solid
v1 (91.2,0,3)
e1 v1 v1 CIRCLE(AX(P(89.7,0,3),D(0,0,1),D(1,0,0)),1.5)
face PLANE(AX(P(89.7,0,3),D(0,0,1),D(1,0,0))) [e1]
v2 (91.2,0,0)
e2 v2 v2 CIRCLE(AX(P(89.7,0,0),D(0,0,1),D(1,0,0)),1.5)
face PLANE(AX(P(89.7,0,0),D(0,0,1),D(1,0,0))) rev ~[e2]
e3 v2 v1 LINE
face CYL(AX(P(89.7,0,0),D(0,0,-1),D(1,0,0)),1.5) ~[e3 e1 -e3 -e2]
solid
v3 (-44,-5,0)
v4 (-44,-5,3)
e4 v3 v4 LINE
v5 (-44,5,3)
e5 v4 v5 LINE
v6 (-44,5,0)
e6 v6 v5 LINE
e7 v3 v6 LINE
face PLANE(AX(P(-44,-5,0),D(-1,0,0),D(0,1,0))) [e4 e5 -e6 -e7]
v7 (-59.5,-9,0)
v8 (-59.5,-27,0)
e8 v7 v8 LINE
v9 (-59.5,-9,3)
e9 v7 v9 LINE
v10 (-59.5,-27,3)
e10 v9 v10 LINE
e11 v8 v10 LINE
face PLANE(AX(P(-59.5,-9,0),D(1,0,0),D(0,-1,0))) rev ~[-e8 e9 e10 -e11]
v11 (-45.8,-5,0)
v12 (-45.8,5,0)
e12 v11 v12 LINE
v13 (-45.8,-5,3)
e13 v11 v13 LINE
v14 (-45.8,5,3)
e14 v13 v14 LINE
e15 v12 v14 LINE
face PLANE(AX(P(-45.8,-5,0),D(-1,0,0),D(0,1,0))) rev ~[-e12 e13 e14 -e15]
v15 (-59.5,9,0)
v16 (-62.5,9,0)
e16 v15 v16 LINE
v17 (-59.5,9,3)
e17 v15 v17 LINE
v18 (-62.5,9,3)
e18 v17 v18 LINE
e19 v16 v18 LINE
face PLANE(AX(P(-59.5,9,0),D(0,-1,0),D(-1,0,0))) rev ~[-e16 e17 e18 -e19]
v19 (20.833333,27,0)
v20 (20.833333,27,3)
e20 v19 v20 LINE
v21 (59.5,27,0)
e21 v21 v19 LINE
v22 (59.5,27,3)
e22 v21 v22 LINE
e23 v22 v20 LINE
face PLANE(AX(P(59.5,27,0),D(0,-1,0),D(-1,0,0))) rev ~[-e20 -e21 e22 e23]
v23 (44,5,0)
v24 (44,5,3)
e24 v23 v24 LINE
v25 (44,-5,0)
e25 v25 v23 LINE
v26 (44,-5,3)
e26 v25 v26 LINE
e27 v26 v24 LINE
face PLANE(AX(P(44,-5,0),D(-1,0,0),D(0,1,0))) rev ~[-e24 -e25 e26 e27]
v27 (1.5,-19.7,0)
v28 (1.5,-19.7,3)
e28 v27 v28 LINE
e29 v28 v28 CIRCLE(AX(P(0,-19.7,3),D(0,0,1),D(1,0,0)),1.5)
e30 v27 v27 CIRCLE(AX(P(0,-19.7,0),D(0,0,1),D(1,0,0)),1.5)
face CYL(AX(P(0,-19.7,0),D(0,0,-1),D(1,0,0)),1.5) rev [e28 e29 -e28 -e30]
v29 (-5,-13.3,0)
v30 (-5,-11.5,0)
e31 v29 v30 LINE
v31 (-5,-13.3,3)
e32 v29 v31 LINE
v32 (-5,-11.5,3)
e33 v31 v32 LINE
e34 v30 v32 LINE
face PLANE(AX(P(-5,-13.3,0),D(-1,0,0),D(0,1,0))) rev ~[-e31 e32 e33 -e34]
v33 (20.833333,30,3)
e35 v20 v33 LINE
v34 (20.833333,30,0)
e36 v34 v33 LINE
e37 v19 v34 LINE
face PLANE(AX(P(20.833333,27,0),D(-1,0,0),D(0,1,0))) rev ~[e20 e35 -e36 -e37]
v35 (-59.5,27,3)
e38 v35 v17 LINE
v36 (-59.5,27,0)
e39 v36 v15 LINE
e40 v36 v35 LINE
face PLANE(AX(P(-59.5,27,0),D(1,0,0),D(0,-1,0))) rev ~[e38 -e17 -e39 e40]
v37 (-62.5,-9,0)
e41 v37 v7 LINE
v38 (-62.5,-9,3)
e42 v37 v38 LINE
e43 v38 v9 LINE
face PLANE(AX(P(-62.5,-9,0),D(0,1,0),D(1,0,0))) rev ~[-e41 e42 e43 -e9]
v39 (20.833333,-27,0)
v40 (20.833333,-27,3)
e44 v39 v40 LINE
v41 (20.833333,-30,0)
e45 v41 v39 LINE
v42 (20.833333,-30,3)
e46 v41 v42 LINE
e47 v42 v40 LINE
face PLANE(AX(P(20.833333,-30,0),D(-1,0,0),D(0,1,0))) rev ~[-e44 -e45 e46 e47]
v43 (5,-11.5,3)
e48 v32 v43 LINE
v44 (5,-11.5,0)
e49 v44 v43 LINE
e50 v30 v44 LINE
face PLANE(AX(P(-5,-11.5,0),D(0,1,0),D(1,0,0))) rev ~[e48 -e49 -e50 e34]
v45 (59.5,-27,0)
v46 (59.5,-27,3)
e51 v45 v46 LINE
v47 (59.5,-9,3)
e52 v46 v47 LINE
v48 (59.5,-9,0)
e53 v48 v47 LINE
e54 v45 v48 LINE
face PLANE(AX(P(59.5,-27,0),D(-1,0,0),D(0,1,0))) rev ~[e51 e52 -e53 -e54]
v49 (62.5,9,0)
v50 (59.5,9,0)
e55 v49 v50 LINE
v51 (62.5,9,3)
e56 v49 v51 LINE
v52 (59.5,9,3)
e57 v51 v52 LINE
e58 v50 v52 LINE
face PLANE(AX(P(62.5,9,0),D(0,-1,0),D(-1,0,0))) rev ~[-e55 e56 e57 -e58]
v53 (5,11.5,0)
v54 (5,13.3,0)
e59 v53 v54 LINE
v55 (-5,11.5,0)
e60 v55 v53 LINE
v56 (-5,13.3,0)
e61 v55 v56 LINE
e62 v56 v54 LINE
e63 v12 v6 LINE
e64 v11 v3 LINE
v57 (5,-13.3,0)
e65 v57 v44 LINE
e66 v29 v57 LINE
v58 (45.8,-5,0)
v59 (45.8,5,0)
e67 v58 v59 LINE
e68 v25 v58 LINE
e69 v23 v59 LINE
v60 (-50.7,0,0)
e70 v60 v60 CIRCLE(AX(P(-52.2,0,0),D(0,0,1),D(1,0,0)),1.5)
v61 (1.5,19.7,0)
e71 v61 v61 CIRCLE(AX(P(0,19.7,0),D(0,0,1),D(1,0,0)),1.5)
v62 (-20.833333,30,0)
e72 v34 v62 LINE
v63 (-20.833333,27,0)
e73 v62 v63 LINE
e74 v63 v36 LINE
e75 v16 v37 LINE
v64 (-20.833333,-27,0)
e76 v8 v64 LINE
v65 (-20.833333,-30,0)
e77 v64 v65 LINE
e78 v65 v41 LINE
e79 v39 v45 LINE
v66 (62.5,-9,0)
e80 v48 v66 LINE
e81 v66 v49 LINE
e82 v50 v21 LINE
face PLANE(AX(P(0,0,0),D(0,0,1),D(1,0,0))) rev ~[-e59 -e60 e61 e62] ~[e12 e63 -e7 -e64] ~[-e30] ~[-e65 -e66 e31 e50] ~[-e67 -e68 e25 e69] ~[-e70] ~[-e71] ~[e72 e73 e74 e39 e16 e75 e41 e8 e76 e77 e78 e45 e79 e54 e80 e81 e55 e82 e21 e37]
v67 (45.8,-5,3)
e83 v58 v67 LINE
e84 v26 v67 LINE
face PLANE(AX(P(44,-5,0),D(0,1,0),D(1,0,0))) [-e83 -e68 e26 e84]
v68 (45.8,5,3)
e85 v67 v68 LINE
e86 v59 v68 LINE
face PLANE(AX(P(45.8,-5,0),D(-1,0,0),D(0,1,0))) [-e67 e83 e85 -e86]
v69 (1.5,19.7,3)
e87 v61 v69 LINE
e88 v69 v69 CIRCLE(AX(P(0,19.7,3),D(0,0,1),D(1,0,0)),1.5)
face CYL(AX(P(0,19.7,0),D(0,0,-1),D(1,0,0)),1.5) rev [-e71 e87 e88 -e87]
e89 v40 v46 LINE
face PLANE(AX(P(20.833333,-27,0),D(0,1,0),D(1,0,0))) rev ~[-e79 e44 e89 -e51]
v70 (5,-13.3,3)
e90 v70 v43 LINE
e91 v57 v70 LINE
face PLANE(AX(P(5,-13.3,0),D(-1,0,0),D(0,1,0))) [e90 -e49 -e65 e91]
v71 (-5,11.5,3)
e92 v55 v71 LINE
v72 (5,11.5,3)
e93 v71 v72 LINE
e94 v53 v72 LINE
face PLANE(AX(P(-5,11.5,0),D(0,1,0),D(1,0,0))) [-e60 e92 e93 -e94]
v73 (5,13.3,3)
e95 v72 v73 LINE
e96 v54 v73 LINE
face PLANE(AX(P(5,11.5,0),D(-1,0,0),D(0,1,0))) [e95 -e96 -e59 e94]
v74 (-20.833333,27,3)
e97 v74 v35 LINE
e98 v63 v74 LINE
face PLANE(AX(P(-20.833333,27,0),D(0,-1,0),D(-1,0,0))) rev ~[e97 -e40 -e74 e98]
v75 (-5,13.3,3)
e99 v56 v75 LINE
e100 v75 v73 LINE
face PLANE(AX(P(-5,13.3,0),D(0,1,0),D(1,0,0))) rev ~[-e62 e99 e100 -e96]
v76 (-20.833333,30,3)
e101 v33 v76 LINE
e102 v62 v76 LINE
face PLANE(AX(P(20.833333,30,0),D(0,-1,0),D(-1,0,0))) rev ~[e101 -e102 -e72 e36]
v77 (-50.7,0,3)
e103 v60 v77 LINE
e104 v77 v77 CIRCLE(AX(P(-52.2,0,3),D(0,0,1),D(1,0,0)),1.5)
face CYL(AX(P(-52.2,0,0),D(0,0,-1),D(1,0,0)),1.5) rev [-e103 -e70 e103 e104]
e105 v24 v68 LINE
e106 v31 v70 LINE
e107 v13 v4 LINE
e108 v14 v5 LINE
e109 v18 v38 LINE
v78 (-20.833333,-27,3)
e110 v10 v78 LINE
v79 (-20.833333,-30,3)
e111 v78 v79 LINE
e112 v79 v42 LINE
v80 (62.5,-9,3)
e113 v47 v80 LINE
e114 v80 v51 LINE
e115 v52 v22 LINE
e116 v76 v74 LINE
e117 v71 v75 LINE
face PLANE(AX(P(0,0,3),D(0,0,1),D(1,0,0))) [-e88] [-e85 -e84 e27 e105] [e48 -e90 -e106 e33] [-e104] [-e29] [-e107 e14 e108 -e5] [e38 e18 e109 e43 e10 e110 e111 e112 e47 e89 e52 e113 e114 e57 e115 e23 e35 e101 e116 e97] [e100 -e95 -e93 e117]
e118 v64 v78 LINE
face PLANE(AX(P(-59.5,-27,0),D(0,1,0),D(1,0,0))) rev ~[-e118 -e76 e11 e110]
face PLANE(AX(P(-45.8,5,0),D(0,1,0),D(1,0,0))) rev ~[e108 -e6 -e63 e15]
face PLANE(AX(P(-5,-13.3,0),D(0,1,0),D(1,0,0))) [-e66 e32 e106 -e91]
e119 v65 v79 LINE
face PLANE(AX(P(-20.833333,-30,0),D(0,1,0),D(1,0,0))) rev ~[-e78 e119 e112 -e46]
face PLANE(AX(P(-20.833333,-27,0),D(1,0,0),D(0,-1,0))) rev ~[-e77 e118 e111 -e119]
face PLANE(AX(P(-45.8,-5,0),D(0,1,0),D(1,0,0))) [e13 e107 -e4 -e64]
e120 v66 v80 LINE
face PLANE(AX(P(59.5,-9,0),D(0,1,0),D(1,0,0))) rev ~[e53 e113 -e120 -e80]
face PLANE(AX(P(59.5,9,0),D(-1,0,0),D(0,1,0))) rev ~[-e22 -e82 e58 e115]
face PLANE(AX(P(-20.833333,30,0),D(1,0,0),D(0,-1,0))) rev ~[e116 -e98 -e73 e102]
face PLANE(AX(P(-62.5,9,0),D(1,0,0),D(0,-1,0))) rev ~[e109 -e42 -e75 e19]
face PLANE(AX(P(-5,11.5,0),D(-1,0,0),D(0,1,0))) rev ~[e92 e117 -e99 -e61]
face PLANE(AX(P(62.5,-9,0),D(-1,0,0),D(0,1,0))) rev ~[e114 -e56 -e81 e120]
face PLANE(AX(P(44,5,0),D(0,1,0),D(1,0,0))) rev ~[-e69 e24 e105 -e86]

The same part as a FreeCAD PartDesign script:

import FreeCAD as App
import Part
import Sketcher

V = App.Vector
Q = App.Units.Quantity

doc = App.newDocument("Part")
body = doc.addObject("PartDesign::Body", "Body")
body.AllowCompound = True

# Sketch on XY plane
sketch1 = body.newObject("Sketcher::SketchObject", "Sketch")
sketch1.AttachmentSupport = (doc.getObject("XY_Plane"), [""])
sketch1.MapMode = "FlatFace"
sketch1.addGeometry(Part.LineSegment(V(-20.8, 27, 0), V(-59.5, 27, 0)), False)
sketch1.addGeometry(Part.LineSegment(V(-59.5, 27, 0), V(-59.5, 9, 0)), False)
sketch1.addGeometry(Part.LineSegment(V(-59.5, 9, 0), V(-62.5, 9, 0)), False)
sketch1.addGeometry(Part.LineSegment(V(-62.5, 9, 0), V(-62.5, -9, 0)), False)
sketch1.addGeometry(Part.LineSegment(V(-62.5, -9, 0), V(-59.5, -9, 0)), False)
sketch1.addGeometry(Part.LineSegment(V(-59.5, -9, 0), V(-59.5, -27, 0)), False)
sketch1.addGeometry(Part.LineSegment(V(-59.5, -27, 0), V(-20.8, -27, 0)), False)
sketch1.addGeometry(Part.LineSegment(V(-20.8, -27, 0), V(-20.8, -30, 0)), False)
sketch1.addGeometry(Part.LineSegment(V(-20.8, -30, 0), V(20.8, -30, 0)), False)
sketch1.addGeometry(Part.LineSegment(V(20.8, -30, 0), V(20.8, -27, 0)), False)
sketch1.addGeometry(Part.LineSegment(V(20.8, -27, 0), V(59.5, -27, 0)), False)
sketch1.addGeometry(Part.LineSegment(V(59.5, -27, 0), V(59.5, -9, 0)), False)
sketch1.addGeometry(Part.LineSegment(V(59.5, -9, 0), V(62.5, -9, 0)), False)
sketch1.addGeometry(Part.LineSegment(V(62.5, -9, 0), V(62.5, 9, 0)), False)
sketch1.addGeometry(Part.LineSegment(V(62.5, 9, 0), V(59.5, 9, 0)), False)
sketch1.addGeometry(Part.LineSegment(V(59.5, 9, 0), V(59.5, 27, 0)), False)
sketch1.addGeometry(Part.LineSegment(V(59.5, 27, 0), V(20.8, 27, 0)), False)
sketch1.addGeometry(Part.LineSegment(V(20.8, 27, 0), V(20.8, 30, 0)), False)
sketch1.addGeometry(Part.LineSegment(V(20.8, 30, 0), V(-20.8, 30, 0)), False)
sketch1.addGeometry(Part.LineSegment(V(-20.8, 30, 0), V(-20.8, 27, 0)), False)
sketch1.addGeometry(Part.Circle(V(0, -19.7, 0), V(0, 0, 1), 1.5), False)
sketch1.addGeometry(Part.LineSegment(V(5, -13.3, 0), V(-5, -13.3, 0)), False)
sketch1.addGeometry(Part.LineSegment(V(-5, -13.3, 0), V(-5, -11.5, 0)), False)
sketch1.addGeometry(Part.LineSegment(V(-5, -11.5, 0), V(5, -11.5, 0)), False)
sketch1.addGeometry(Part.LineSegment(V(5, -11.5, 0), V(5, -13.3, 0)), False)
sketch1.addGeometry(Part.Circle(V(-52.2, 0, 0), V(0, 0, 1), 1.5), False)
sketch1.addGeometry(Part.LineSegment(V(-44, -5, 0), V(-45.8, -5, 0)), False)
sketch1.addGeometry(Part.LineSegment(V(-45.8, -5, 0), V(-45.8, 5, 0)), False)
sketch1.addGeometry(Part.LineSegment(V(-45.8, 5, 0), V(-44, 5, 0)), False)
sketch1.addGeometry(Part.LineSegment(V(-44, 5, 0), V(-44, -5, 0)), False)
sketch1.addGeometry(Part.LineSegment(V(45.8, -5, 0), V(44, -5, 0)), False)
sketch1.addGeometry(Part.LineSegment(V(44, -5, 0), V(44, 5, 0)), False)
sketch1.addGeometry(Part.LineSegment(V(44, 5, 0), V(45.8, 5, 0)), False)
sketch1.addGeometry(Part.LineSegment(V(45.8, 5, 0), V(45.8, -5, 0)), False)
sketch1.addGeometry(Part.LineSegment(V(5, 11.5, 0), V(-5, 11.5, 0)), False)
sketch1.addGeometry(Part.LineSegment(V(-5, 11.5, 0), V(-5, 13.3, 0)), False)
sketch1.addGeometry(Part.LineSegment(V(-5, 13.3, 0), V(5, 13.3, 0)), False)
sketch1.addGeometry(Part.LineSegment(V(5, 13.3, 0), V(5, 11.5, 0)), False)
sketch1.addGeometry(Part.Circle(V(0, 19.7, 0), V(0, 0, 1), 1.5), False)
sketch1.addGeometry(Part.Circle(V(89.7, 0, 0), V(0, 0, 1), 1.5), False)
sketch1.addConstraint(Sketcher.Constraint("Coincident", 0, 2, 1, 1))
sketch1.addConstraint(Sketcher.Constraint("Coincident", 1, 2, 2, 1))
sketch1.addConstraint(Sketcher.Constraint("Coincident", 2, 2, 3, 1))
sketch1.addConstraint(Sketcher.Constraint("Coincident", 3, 2, 4, 1))
sketch1.addConstraint(Sketcher.Constraint("Coincident", 4, 2, 5, 1))
sketch1.addConstraint(Sketcher.Constraint("Coincident", 5, 2, 6, 1))
sketch1.addConstraint(Sketcher.Constraint("Coincident", 6, 2, 7, 1))
sketch1.addConstraint(Sketcher.Constraint("Coincident", 7, 2, 8, 1))
sketch1.addConstraint(Sketcher.Constraint("Coincident", 8, 2, 9, 1))
sketch1.addConstraint(Sketcher.Constraint("Coincident", 9, 2, 10, 1))
sketch1.addConstraint(Sketcher.Constraint("Coincident", 10, 2, 11, 1))
sketch1.addConstraint(Sketcher.Constraint("Coincident", 11, 2, 12, 1))
sketch1.addConstraint(Sketcher.Constraint("Coincident", 12, 2, 13, 1))
sketch1.addConstraint(Sketcher.Constraint("Coincident", 13, 2, 14, 1))
sketch1.addConstraint(Sketcher.Constraint("Coincident", 14, 2, 15, 1))
sketch1.addConstraint(Sketcher.Constraint("Coincident", 15, 2, 16, 1))
sketch1.addConstraint(Sketcher.Constraint("Coincident", 16, 2, 17, 1))
sketch1.addConstraint(Sketcher.Constraint("Coincident", 17, 2, 18, 1))
sketch1.addConstraint(Sketcher.Constraint("Coincident", 18, 2, 19, 1))
sketch1.addConstraint(Sketcher.Constraint("Coincident", 19, 2, 0, 1))
sketch1.addConstraint(Sketcher.Constraint("Coincident", 21, 2, 22, 1))
sketch1.addConstraint(Sketcher.Constraint("Coincident", 22, 2, 23, 1))
sketch1.addConstraint(Sketcher.Constraint("Coincident", 23, 2, 24, 1))
sketch1.addConstraint(Sketcher.Constraint("Coincident", 24, 2, 21, 1))
sketch1.addConstraint(Sketcher.Constraint("Coincident", 26, 2, 27, 1))
sketch1.addConstraint(Sketcher.Constraint("Coincident", 27, 2, 28, 1))
sketch1.addConstraint(Sketcher.Constraint("Coincident", 28, 2, 29, 1))
sketch1.addConstraint(Sketcher.Constraint("Coincident", 29, 2, 26, 1))
sketch1.addConstraint(Sketcher.Constraint("Coincident", 30, 2, 31, 1))
sketch1.addConstraint(Sketcher.Constraint("Coincident", 31, 2, 32, 1))
sketch1.addConstraint(Sketcher.Constraint("Coincident", 32, 2, 33, 1))
sketch1.addConstraint(Sketcher.Constraint("Coincident", 33, 2, 30, 1))
sketch1.addConstraint(Sketcher.Constraint("Coincident", 34, 2, 35, 1))
sketch1.addConstraint(Sketcher.Constraint("Coincident", 35, 2, 36, 1))
sketch1.addConstraint(Sketcher.Constraint("Coincident", 36, 2, 37, 1))
sketch1.addConstraint(Sketcher.Constraint("Coincident", 37, 2, 34, 1))
sketch1.addConstraint(Sketcher.Constraint("Horizontal", 0))
sketch1.addConstraint(Sketcher.Constraint("Vertical", 1))
sketch1.addConstraint(Sketcher.Constraint("Horizontal", 2))
sketch1.addConstraint(Sketcher.Constraint("Vertical", 3))
sketch1.addConstraint(Sketcher.Constraint("Horizontal", 4))
sketch1.addConstraint(Sketcher.Constraint("Vertical", 5))
sketch1.addConstraint(Sketcher.Constraint("Horizontal", 6))
sketch1.addConstraint(Sketcher.Constraint("Vertical", 7))
sketch1.addConstraint(Sketcher.Constraint("Horizontal", 8))
sketch1.addConstraint(Sketcher.Constraint("Vertical", 9))
sketch1.addConstraint(Sketcher.Constraint("Horizontal", 10))
sketch1.addConstraint(Sketcher.Constraint("Vertical", 11))
sketch1.addConstraint(Sketcher.Constraint("Horizontal", 12))
sketch1.addConstraint(Sketcher.Constraint("Vertical", 13))
sketch1.addConstraint(Sketcher.Constraint("Horizontal", 14))
sketch1.addConstraint(Sketcher.Constraint("Vertical", 15))
sketch1.addConstraint(Sketcher.Constraint("Horizontal", 16))
sketch1.addConstraint(Sketcher.Constraint("Vertical", 17))
sketch1.addConstraint(Sketcher.Constraint("Horizontal", 18))
sketch1.addConstraint(Sketcher.Constraint("Vertical", 19))
sketch1.addConstraint(Sketcher.Constraint("Horizontal", 21))
sketch1.addConstraint(Sketcher.Constraint("Vertical", 22))
sketch1.addConstraint(Sketcher.Constraint("Horizontal", 23))
sketch1.addConstraint(Sketcher.Constraint("Vertical", 24))
sketch1.addConstraint(Sketcher.Constraint("Horizontal", 26))
sketch1.addConstraint(Sketcher.Constraint("Vertical", 27))
sketch1.addConstraint(Sketcher.Constraint("Horizontal", 28))
sketch1.addConstraint(Sketcher.Constraint("Vertical", 29))
sketch1.addConstraint(Sketcher.Constraint("Horizontal", 30))
sketch1.addConstraint(Sketcher.Constraint("Vertical", 31))
sketch1.addConstraint(Sketcher.Constraint("Horizontal", 32))
sketch1.addConstraint(Sketcher.Constraint("Vertical", 33))
sketch1.addConstraint(Sketcher.Constraint("Horizontal", 34))
sketch1.addConstraint(Sketcher.Constraint("Vertical", 35))
sketch1.addConstraint(Sketcher.Constraint("Horizontal", 36))
sketch1.addConstraint(Sketcher.Constraint("Vertical", 37))
sketch1.addConstraint(Sketcher.Constraint("Equal", 20, 25))
sketch1.addConstraint(Sketcher.Constraint("Equal", 25, 38))
sketch1.addConstraint(Sketcher.Constraint("Equal", 38, 39))
sketch1.addConstraint(Sketcher.Constraint("Symmetric", 20, 3, 38, 3, -1, 1))
sketch1.addConstraint(Sketcher.Constraint("Symmetric", 0, 2, 10, 2, -1, 1))
sketch1.addConstraint(Sketcher.Constraint("Symmetric", 2, 2, 12, 2, -1, 1))
sketch1.addConstraint(Sketcher.Constraint("Symmetric", 4, 2, 14, 2, -1, 1))
sketch1.addConstraint(Sketcher.Constraint("Symmetric", 6, 2, 16, 2, -1, 1))
sketch1.addConstraint(Sketcher.Constraint("Symmetric", 8, 2, 18, 2, -1, 1))
sketch1.addConstraint(Sketcher.Constraint("Symmetric", 28, 2, 30, 2, -1, 1))
sketch1.addConstraint(Sketcher.Constraint("Symmetric", 26, 2, 32, 2, -1, 1))
sketch1.addConstraint(Sketcher.Constraint("Symmetric", 23, 2, 34, 2, -1, 1))
sketch1.addConstraint(Sketcher.Constraint("Symmetric", 21, 2, 36, 2, -1, 1))
sketch1.addConstraint(Sketcher.Constraint("Symmetric", 6, 2, 9, 2, -2))
sketch1.addConstraint(Sketcher.Constraint("Symmetric", 4, 2, 11, 2, -2))
sketch1.addConstraint(Sketcher.Constraint("PointOnObject", 20, 3, -2))
sketch1.addConstraint(Sketcher.Constraint("PointOnObject", 25, 3, -1))
sketch1.addConstraint(Sketcher.Constraint("PointOnObject", 39, 3, -1))
sketch1.addConstraint(Sketcher.Constraint("Horizontal", 29, 2, 30, 2))
sketch1.addConstraint(Sketcher.Constraint("Vertical", 22, 2, 34, 2))
sketch1.addConstraint(Sketcher.Constraint("Equal", 1, 3))
sketch1.addConstraint(Sketcher.Constraint("Equal", 14, 7))
sketch1.addConstraint(Sketcher.Constraint("Equal", 32, 22))
sketch1.addConstraint(Sketcher.Constraint("Equal", 36, 27))
sketch1.addConstraint(Sketcher.Constraint("Diameter", 20, Q("3 mm")))
sketch1.addConstraint(Sketcher.Constraint("DistanceX", 2, 2, 2, 1, Q("3 mm")))
sketch1.addConstraint(Sketcher.Constraint("DistanceX", 21, 2, 21, 1, Q("10 mm")))
sketch1.addConstraint(Sketcher.Constraint("DistanceY", 1, 2, 1, 1, Q("18 mm")))
sketch1.addConstraint(Sketcher.Constraint("DistanceX", 26, 2, 26, 1, Q("1.8 mm")))
sketch1.addConstraint(Sketcher.Constraint("DistanceX", 28, 2, -1, 1, Q("44 mm")))
sketch1.addConstraint(Sketcher.Constraint("DistanceY", 22, 2, 34, 2, Q("23 mm")))
sketch1.addConstraint(Sketcher.Constraint("DistanceY", 20, 3, -1, 1, Q("19.7 mm")))
sketch1.addConstraint(Sketcher.Constraint("DistanceX", 25, 3, -1, 1, Q("52.2 mm")))
sketch1.addConstraint(Sketcher.Constraint("DistanceX", -1, 1, 39, 3, Q("89.7 mm")))
sketch1.addConstraint(Sketcher.Constraint("DistanceX", 0, 2, -1, 1, Q("59.5 mm")))
sketch1.addConstraint(Sketcher.Constraint("DistanceX", 0, 2, 0, 1, Q("38.666667 mm")))
pad1 = body.newObject("PartDesign::Pad", "Pad")
pad1.Profile = sketch1
pad1.Length = 3

doc.recompute()
